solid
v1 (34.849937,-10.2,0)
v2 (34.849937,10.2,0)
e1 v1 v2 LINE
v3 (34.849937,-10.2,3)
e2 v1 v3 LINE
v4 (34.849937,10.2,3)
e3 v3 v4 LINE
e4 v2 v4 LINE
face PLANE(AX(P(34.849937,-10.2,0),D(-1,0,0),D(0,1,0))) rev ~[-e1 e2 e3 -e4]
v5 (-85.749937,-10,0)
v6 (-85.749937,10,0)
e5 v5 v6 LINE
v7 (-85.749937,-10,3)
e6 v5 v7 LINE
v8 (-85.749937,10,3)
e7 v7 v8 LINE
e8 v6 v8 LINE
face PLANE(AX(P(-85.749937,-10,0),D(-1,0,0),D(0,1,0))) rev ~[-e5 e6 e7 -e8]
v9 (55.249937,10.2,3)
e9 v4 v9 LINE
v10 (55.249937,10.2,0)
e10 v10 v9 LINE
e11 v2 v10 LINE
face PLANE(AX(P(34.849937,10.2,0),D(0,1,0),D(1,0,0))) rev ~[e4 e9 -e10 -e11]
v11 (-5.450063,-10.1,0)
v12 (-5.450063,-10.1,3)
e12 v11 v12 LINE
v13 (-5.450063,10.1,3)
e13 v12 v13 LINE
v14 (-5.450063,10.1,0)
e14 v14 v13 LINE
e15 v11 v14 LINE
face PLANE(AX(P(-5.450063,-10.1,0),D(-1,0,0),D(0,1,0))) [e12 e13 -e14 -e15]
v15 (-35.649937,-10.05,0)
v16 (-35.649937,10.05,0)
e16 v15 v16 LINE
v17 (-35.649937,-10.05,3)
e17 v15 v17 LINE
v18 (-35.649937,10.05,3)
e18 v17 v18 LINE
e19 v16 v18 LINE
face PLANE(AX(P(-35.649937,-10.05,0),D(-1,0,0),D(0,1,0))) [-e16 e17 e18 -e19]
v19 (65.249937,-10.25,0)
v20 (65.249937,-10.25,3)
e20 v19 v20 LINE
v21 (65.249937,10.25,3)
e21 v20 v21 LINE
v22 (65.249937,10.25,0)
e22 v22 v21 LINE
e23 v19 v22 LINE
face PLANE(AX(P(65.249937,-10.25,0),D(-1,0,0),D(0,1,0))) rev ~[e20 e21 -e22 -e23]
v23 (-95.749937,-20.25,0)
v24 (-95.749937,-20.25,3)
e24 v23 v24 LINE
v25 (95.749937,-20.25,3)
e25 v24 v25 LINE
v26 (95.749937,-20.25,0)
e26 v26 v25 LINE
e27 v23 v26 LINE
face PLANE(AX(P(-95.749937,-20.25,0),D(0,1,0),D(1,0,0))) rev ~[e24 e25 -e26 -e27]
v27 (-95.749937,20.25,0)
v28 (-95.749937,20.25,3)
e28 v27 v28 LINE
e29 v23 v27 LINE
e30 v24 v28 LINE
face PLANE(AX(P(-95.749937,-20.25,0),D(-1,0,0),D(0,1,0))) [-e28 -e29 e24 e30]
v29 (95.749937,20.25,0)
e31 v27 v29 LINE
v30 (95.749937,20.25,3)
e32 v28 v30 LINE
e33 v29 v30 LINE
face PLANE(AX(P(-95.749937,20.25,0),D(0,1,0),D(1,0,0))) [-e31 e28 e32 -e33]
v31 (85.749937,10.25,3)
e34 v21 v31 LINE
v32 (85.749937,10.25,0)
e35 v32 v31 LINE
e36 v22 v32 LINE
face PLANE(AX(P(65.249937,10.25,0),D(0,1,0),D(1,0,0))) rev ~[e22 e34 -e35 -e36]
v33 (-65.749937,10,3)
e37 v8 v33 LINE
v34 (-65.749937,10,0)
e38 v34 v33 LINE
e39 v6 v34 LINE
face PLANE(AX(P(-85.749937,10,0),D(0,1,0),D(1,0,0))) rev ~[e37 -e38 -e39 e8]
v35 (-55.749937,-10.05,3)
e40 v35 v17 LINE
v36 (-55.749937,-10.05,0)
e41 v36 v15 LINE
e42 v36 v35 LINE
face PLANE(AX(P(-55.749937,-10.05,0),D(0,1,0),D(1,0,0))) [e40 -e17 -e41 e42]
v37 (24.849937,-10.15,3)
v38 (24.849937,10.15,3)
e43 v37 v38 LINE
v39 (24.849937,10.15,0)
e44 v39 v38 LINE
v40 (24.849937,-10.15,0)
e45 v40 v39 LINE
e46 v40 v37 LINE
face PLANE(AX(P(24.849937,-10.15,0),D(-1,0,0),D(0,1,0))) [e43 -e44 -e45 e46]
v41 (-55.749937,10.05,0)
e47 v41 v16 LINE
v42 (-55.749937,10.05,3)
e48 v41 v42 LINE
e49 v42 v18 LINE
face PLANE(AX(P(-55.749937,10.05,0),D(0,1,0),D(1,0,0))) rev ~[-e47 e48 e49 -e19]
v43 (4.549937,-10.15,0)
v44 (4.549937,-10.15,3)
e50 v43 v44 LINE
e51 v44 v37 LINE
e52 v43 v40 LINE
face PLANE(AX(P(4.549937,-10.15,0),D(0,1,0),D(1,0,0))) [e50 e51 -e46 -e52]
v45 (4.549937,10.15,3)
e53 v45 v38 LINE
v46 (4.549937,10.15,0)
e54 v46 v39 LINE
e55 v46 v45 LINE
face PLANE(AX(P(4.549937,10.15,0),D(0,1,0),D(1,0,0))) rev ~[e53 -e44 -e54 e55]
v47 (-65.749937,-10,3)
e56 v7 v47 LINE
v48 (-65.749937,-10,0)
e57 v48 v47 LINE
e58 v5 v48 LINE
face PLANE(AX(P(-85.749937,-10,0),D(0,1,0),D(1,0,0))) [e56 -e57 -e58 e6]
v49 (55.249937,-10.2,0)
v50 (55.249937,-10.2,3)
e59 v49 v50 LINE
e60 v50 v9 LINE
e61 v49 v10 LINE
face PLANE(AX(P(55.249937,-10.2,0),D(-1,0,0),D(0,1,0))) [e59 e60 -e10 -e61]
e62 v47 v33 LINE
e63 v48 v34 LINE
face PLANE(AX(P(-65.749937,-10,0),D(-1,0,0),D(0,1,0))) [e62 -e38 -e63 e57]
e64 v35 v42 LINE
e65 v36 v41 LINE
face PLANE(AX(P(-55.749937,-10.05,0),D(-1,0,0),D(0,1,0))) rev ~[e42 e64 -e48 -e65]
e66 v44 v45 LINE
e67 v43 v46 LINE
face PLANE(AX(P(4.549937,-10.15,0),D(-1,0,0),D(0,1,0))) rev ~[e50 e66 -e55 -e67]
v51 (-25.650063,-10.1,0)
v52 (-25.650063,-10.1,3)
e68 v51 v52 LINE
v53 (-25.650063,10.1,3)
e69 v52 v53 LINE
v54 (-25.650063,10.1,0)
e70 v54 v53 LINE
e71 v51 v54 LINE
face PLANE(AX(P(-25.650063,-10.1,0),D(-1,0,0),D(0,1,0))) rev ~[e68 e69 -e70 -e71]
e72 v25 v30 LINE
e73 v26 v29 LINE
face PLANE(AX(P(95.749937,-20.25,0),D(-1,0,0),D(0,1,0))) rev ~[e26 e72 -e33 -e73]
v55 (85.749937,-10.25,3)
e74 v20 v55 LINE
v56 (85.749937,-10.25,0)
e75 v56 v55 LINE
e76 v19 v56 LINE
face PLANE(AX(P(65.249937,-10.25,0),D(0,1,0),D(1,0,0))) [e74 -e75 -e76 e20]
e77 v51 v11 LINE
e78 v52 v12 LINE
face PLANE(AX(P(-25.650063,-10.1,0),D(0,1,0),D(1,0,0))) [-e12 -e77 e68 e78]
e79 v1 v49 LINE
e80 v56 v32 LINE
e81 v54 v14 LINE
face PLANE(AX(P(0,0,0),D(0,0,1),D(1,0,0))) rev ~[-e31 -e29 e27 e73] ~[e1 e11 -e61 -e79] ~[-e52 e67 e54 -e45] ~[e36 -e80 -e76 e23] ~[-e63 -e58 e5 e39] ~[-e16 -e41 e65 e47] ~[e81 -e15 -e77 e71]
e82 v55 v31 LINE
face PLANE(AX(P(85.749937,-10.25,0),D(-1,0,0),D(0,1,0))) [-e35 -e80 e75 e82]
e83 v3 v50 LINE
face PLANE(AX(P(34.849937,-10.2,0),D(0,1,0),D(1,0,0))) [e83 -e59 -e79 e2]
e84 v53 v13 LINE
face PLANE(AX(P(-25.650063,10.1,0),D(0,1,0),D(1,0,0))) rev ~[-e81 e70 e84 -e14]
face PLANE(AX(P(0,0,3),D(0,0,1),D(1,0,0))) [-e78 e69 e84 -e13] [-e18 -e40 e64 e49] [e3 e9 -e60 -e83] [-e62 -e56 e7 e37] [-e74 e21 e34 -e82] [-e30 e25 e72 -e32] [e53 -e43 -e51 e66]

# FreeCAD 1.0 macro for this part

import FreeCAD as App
import Part
import Sketcher

V = App.Vector
Q = App.Units.Quantity

doc = App.newDocument("Part")
params = doc.addObject("Spreadsheet::Sheet", "Params")
for row, (alias, value) in enumerate([
    ("sketch1_width", "20 mm"),
    ("sketch1_width2", "20.1 mm"),
    ("sketch1_width3", "20.2 mm"),
    ("sketch1_width4", "20.3 mm"),
    ("sketch1_width5", "20.4 mm"),
    ("pad1_length", "3 mm"),
], start=1):
    params.set(f"A{row}", alias)
    params.set(f"B{row}", "=" + value)
    params.setAlias(f"B{row}", alias)

body = doc.addObject("PartDesign::Body", "Body")

# Sketch on XY plane
sketch1 = body.newObject("Sketcher::SketchObject", "Sketch")
sketch1.AttachmentSupport = (doc.getObject("XY_Plane"), [""])
sketch1.MapMode = "FlatFace"
sketch1.addGeometry(Part.LineSegment(V(-95.749937, 20.25, 0), V(-95.749937, -20.25, 0)), False)
sketch1.addGeometry(Part.LineSegment(V(-95.749937, -20.25, 0), V(95.749937, -20.25, 0)), False)
sketch1.addGeometry(Part.LineSegment(V(95.749937, -20.25, 0), V(95.749937, 20.25, 0)), False)
sketch1.addGeometry(Part.LineSegment(V(95.749937, 20.25, 0), V(-95.749937, 20.25, 0)), False)
sketch1.addGeometry(Part.LineSegment(V(-65.749937, -10, 0), V(-85.749937, -10, 0)), False)
sketch1.addGeometry(Part.LineSegment(V(-85.749937, -10, 0), V(-85.749937, 10, 0)), False)
sketch1.addGeometry(Part.LineSegment(V(-85.749937, 10, 0), V(-65.749937, 10, 0)), False)
sketch1.addGeometry(Part.LineSegment(V(-65.749937, 10, 0), V(-65.749937, -10, 0)), False)
sketch1.addGeometry(Part.LineSegment(V(-35.649937, -10.05, 0), V(-55.749937, -10.05, 0)), False)
sketch1.addGeometry(Part.LineSegment(V(-55.749937, -10.05, 0), V(-55.749937, 10.05, 0)), False)
sketch1.addGeometry(Part.LineSegment(V(-55.749937, 10.05, 0), V(-35.649937, 10.05, 0)), False)
sketch1.addGeometry(Part.LineSegment(V(-35.649937, 10.05, 0), V(-35.649937, -10.05, 0)), False)
sketch1.addGeometry(Part.LineSegment(V(-5.450063, -10.1, 0), V(-25.650063, -10.1, 0)), False)
sketch1.addGeometry(Part.LineSegment(V(-25.650063, -10.1, 0), V(-25.650063, 10.1, 0)), False)
sketch1.addGeometry(Part.LineSegment(V(-25.650063, 10.1, 0), V(-5.450063, 10.1, 0)), False)
sketch1.addGeometry(Part.LineSegment(V(-5.450063, 10.1, 0), V(-5.450063, -10.1, 0)), False)
sketch1.addGeometry(Part.LineSegment(V(24.849937, -10.15, 0), V(4.549937, -10.15, 0)), False)
sketch1.addGeometry(Part.LineSegment(V(4.549937, -10.15, 0), V(4.549937, 10.15, 0)), False)
sketch1.addGeometry(Part.LineSegment(V(4.549937, 10.15, 0), V(24.849937, 10.15, 0)), False)
sketch1.addGeometry(Part.LineSegment(V(24.849937, 10.15, 0), V(24.849937, -10.15, 0)), False)
sketch1.addGeometry(Part.LineSegment(V(55.249937, -10.2, 0), V(34.849937, -10.2, 0)), False)
sketch1.addGeometry(Part.LineSegment(V(34.849937, -10.2, 0), V(34.849937, 10.2, 0)), False)
sketch1.addGeometry(Part.LineSegment(V(34.849937, 10.2, 0), V(55.249937, 10.2, 0)), False)
sketch1.addGeometry(Part.LineSegment(V(55.249937, 10.2, 0), V(55.249937, -10.2, 0)), False)
sketch1.addGeometry(Part.LineSegment(V(85.749937, -10.25, 0), V(65.249937, -10.25, 0)), False)
sketch1.addGeometry(Part.LineSegment(V(65.249937, -10.25, 0), V(65.249937, 10.25, 0)), False)
sketch1.addGeometry(Part.LineSegment(V(65.249937, 10.25, 0), V(85.749937, 10.25, 0)), False)
sketch1.addGeometry(Part.LineSegment(V(85.749937, 10.25, 0), V(85.749937, -10.25, 0)), False)
sketch1.addConstraint(Sketcher.Constraint("Coincident", 0, 2, 1, 1))
sketch1.addConstraint(Sketcher.Constraint("Coincident", 1, 2, 2, 1))
sketch1.addConstraint(Sketcher.Constraint("Coincident", 2, 2, 3, 1))
sketch1.addConstraint(Sketcher.Constraint("Coincident", 3, 2, 0, 1))
sketch1.addConstraint(Sketcher.Constraint("Coincident", 4, 2, 5, 1))
sketch1.addConstraint(Sketcher.Constraint("Coincident", 5, 2, 6, 1))
sketch1.addConstraint(Sketcher.Constraint("Coincident", 6, 2, 7, 1))
sketch1.addConstraint(Sketcher.Constraint("Coincident", 7, 2, 4, 1))
sketch1.addConstraint(Sketcher.Constraint("Coincident", 8, 2, 9, 1))
sketch1.addConstraint(Sketcher.Constraint("Coincident", 9, 2, 10, 1))
sketch1.addConstraint(Sketcher.Constraint("Coincident", 10, 2, 11, 1))
sketch1.addConstraint(Sketcher.Constraint("Coincident", 11, 2, 8, 1))
sketch1.addConstraint(Sketcher.Constraint("Coincident", 12, 2, 13, 1))
sketch1.addConstraint(Sketcher.Constraint("Coincident", 13, 2, 14, 1))
sketch1.addConstraint(Sketcher.Constraint("Coincident", 14, 2, 15, 1))
sketch1.addConstraint(Sketcher.Constraint("Coincident", 15, 2, 12, 1))
sketch1.addConstraint(Sketcher.Constraint("Coincident", 16, 2, 17, 1))
sketch1.addConstraint(Sketcher.Constraint("Coincident", 17, 2, 18, 1))
sketch1.addConstraint(Sketcher.Constraint("Coincident", 18, 2, 19, 1))
sketch1.addConstraint(Sketcher.Constraint("Coincident", 19, 2, 16, 1))
sketch1.addConstraint(Sketcher.Constraint("Coincident", 20, 2, 21, 1))
sketch1.addConstraint(Sketcher.Constraint("Coincident", 21, 2, 22, 1))
sketch1.addConstraint(Sketcher.Constraint("Coincident", 22, 2, 23, 1))
sketch1.addConstraint(Sketcher.Constraint("Coincident", 23, 2, 20, 1))
sketch1.addConstraint(Sketcher.Constraint("Coincident", 24, 2, 25, 1))
sketch1.addConstraint(Sketcher.Constraint("Coincident", 25, 2, 26, 1))
sketch1.addConstraint(Sketcher.Constraint("Coincident", 26, 2, 27, 1))
sketch1.addConstraint(Sketcher.Constraint("Coincident", 27, 2, 24, 1))
sketch1.addConstraint(Sketcher.Constraint("Vertical", 0))
sketch1.addConstraint(Sketcher.Constraint("Horizontal", 1))
sketch1.addConstraint(Sketcher.Constraint("Vertical", 2))
sketch1.addConstraint(Sketcher.Constraint("Horizontal", 3))
sketch1.addConstraint(Sketcher.Constraint("Horizontal", 4))
sketch1.addConstraint(Sketcher.Constraint("Vertical", 5))
sketch1.addConstraint(Sketcher.Constraint("Horizontal", 6))
sketch1.addConstraint(Sketcher.Constraint("Vertical", 7))
sketch1.addConstraint(Sketcher.Constraint("Horizontal", 8))
sketch1.addConstraint(Sketcher.Constraint("Vertical", 9))
sketch1.addConstraint(Sketcher.Constraint("Horizontal", 10))
sketch1.addConstraint(Sketcher.Constraint("Vertical", 11))
sketch1.addConstraint(Sketcher.Constraint("Horizontal", 12))
sketch1.addConstraint(Sketcher.Constraint("Vertical", 13))
sketch1.addConstraint(Sketcher.Constraint("Horizontal", 14))
sketch1.addConstraint(Sketcher.Constraint("Vertical", 15))
sketch1.addConstraint(Sketcher.Constraint("Horizontal", 16))
sketch1.addConstraint(Sketcher.Constraint("Vertical", 17))
sketch1.addConstraint(Sketcher.Constraint("Horizontal", 18))
sketch1.addConstraint(Sketcher.Constraint("Vertical", 19))
sketch1.addConstraint(Sketcher.Constraint("Horizontal", 20))
sketch1.addConstraint(Sketcher.Constraint("Vertical", 21))
sketch1.addConstraint(Sketcher.Constraint("Horizontal", 22))
sketch1.addConstraint(Sketcher.Constraint("Vertical", 23))
sketch1.addConstraint(Sketcher.Constraint("Horizontal", 24))
sketch1.addConstraint(Sketcher.Constraint("Vertical", 25))
sketch1.addConstraint(Sketcher.Constraint("Horizontal", 26))
sketch1.addConstraint(Sketcher.Constraint("Vertical", 27))
sketch1.addConstraint(Sketcher.Constraint("Symmetric", 0, 2, 2, 2, -1, 1))
sketch1.addConstraint(Sketcher.Constraint("Equal", 6, 5))
sketch1.addConstraint(Sketcher.Constraint("Equal", 10, 9))
sketch1.addConstraint(Sketcher.Constraint("Equal", 14, 13))
sketch1.addConstraint(Sketcher.Constraint("Equal", 18, 17))
sketch1.addConstraint(Sketcher.Constraint("Equal", 22, 21))
sketch1.addConstraint(Sketcher.Constraint("Equal", 26, 25))
sketch1.addConstraint(Sketcher.Constraint("DistanceX", 4, 2, 4, 1, Q("20 mm")))
sketch1.addConstraint(Sketcher.Constraint("DistanceX", 8, 2, 8, 1, Q("20.1 mm")))
sketch1.addConstraint(Sketcher.Constraint("DistanceX", 12, 2, 12, 1, Q("20.2 mm")))
sketch1.addConstraint(Sketcher.Constraint("DistanceX", 16, 2, 16, 1, Q("20.3 mm")))
sketch1.addConstraint(Sketcher.Constraint("DistanceX", 20, 2, 20, 1, Q("20.4 mm")))
sketch1.addConstraint(Sketcher.Constraint("DistanceX", 24, 2, 24, 1, Q("20.5 mm")))
sketch1.addConstraint(Sketcher.Constraint("DistanceY", 0, 2, 0, 1, Q("40.5 mm")))
sketch1.addConstraint(Sketcher.Constraint("DistanceY", 4, 2, -1, 1, Q("10 mm")))
sketch1.addConstraint(Sketcher.Constraint("DistanceX", 0, 2, 4, 2, Q("10 mm")))
sketch1.addConstraint(Sketcher.Constraint("DistanceX", 7, 2, 8, 2, Q("10 mm")))
sketch1.addConstraint(Sketcher.Constraint("DistanceX", 15, 2, 16, 2, Q("10 mm")))
sketch1.addConstraint(Sketcher.Constraint("DistanceX", 19, 2, 20, 2, Q("10 mm")))
sketch1.addConstraint(Sketcher.Constraint("DistanceX", 23, 2, 24, 2, Q("10 mm")))
sketch1.addConstraint(Sketcher.Constraint("DistanceY", 1, 2, 24, 2, Q("10 mm")))
sketch1.addConstraint(Sketcher.Constraint("DistanceX", 26, 2, 2, 2, Q("10 mm")))
sketch1.addConstraint(Sketcher.Constraint("DistanceY", 12, 2, -1, 1, Q("10.1 mm")))
sketch1.addConstraint(Sketcher.Constraint("DistanceY", 20, 2, -1, 1, Q("10.2 mm")))
sketch1.addConstraint(Sketcher.Constraint("DistanceY", 0, 2, 8, 2, Q("10.2 mm")))
sketch1.addConstraint(Sketcher.Constraint("DistanceY", 16, 2, 11, 2, Q("0.1 mm")))
sketch1.addConstraint(Sketcher.Constraint("DistanceX", 1, 1, 1, 2, Q("191.499874 mm")))
sketch1.setExpression("Constraints[63]", "Params.sketch1_width")
sketch1.setExpression("Constraints[64]", "Params.sketch1_width2")
sketch1.setExpression("Constraints[65]", "Params.sketch1_width3")
sketch1.setExpression("Constraints[66]", "Params.sketch1_width4")
sketch1.setExpression("Constraints[67]", "Params.sketch1_width5")
pad1 = body.newObject("PartDesign::Pad", "Pad")
pad1.Profile = sketch1
pad1.setExpression("Length", "Params.pad1_length")

doc.recompute()
